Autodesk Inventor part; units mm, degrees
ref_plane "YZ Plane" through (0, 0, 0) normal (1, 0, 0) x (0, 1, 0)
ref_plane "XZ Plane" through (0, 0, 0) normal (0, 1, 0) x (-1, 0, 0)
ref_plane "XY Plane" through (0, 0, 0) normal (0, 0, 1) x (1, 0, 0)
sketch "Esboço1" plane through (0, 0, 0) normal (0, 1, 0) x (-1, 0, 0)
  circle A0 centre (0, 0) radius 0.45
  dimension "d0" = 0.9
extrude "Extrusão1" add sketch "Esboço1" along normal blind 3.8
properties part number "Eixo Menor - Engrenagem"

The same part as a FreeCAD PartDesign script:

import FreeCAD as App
import Part
import Sketcher

doc = App.newDocument("Part")
body = doc.addObject("PartDesign::Body", "Body")

# Sketch on XZ plane
sketch1 = body.newObject("Sketcher::SketchObject", "Sketch")
sketch1.AttachmentSupport = (doc.getObject("XZ_Plane"), [""])
sketch1.MapMode = "FlatFace"
sketch1.addGeometry(Part.Circle(App.Vector(0, 0, 0), App.Vector(0, 0, 1), 0.45), False)
sketch1.addConstraint(Sketcher.Constraint("Coincident", 0, 3, -1, 1))
sketch1.addConstraint(Sketcher.Constraint("Diameter", 0, 0.9))
pad1 = body.newObject("PartDesign::Pad", "Pad")
pad1.Profile = sketch1
pad1.Length = 3.8
pad1.Reversed = True

doc.recompute()
